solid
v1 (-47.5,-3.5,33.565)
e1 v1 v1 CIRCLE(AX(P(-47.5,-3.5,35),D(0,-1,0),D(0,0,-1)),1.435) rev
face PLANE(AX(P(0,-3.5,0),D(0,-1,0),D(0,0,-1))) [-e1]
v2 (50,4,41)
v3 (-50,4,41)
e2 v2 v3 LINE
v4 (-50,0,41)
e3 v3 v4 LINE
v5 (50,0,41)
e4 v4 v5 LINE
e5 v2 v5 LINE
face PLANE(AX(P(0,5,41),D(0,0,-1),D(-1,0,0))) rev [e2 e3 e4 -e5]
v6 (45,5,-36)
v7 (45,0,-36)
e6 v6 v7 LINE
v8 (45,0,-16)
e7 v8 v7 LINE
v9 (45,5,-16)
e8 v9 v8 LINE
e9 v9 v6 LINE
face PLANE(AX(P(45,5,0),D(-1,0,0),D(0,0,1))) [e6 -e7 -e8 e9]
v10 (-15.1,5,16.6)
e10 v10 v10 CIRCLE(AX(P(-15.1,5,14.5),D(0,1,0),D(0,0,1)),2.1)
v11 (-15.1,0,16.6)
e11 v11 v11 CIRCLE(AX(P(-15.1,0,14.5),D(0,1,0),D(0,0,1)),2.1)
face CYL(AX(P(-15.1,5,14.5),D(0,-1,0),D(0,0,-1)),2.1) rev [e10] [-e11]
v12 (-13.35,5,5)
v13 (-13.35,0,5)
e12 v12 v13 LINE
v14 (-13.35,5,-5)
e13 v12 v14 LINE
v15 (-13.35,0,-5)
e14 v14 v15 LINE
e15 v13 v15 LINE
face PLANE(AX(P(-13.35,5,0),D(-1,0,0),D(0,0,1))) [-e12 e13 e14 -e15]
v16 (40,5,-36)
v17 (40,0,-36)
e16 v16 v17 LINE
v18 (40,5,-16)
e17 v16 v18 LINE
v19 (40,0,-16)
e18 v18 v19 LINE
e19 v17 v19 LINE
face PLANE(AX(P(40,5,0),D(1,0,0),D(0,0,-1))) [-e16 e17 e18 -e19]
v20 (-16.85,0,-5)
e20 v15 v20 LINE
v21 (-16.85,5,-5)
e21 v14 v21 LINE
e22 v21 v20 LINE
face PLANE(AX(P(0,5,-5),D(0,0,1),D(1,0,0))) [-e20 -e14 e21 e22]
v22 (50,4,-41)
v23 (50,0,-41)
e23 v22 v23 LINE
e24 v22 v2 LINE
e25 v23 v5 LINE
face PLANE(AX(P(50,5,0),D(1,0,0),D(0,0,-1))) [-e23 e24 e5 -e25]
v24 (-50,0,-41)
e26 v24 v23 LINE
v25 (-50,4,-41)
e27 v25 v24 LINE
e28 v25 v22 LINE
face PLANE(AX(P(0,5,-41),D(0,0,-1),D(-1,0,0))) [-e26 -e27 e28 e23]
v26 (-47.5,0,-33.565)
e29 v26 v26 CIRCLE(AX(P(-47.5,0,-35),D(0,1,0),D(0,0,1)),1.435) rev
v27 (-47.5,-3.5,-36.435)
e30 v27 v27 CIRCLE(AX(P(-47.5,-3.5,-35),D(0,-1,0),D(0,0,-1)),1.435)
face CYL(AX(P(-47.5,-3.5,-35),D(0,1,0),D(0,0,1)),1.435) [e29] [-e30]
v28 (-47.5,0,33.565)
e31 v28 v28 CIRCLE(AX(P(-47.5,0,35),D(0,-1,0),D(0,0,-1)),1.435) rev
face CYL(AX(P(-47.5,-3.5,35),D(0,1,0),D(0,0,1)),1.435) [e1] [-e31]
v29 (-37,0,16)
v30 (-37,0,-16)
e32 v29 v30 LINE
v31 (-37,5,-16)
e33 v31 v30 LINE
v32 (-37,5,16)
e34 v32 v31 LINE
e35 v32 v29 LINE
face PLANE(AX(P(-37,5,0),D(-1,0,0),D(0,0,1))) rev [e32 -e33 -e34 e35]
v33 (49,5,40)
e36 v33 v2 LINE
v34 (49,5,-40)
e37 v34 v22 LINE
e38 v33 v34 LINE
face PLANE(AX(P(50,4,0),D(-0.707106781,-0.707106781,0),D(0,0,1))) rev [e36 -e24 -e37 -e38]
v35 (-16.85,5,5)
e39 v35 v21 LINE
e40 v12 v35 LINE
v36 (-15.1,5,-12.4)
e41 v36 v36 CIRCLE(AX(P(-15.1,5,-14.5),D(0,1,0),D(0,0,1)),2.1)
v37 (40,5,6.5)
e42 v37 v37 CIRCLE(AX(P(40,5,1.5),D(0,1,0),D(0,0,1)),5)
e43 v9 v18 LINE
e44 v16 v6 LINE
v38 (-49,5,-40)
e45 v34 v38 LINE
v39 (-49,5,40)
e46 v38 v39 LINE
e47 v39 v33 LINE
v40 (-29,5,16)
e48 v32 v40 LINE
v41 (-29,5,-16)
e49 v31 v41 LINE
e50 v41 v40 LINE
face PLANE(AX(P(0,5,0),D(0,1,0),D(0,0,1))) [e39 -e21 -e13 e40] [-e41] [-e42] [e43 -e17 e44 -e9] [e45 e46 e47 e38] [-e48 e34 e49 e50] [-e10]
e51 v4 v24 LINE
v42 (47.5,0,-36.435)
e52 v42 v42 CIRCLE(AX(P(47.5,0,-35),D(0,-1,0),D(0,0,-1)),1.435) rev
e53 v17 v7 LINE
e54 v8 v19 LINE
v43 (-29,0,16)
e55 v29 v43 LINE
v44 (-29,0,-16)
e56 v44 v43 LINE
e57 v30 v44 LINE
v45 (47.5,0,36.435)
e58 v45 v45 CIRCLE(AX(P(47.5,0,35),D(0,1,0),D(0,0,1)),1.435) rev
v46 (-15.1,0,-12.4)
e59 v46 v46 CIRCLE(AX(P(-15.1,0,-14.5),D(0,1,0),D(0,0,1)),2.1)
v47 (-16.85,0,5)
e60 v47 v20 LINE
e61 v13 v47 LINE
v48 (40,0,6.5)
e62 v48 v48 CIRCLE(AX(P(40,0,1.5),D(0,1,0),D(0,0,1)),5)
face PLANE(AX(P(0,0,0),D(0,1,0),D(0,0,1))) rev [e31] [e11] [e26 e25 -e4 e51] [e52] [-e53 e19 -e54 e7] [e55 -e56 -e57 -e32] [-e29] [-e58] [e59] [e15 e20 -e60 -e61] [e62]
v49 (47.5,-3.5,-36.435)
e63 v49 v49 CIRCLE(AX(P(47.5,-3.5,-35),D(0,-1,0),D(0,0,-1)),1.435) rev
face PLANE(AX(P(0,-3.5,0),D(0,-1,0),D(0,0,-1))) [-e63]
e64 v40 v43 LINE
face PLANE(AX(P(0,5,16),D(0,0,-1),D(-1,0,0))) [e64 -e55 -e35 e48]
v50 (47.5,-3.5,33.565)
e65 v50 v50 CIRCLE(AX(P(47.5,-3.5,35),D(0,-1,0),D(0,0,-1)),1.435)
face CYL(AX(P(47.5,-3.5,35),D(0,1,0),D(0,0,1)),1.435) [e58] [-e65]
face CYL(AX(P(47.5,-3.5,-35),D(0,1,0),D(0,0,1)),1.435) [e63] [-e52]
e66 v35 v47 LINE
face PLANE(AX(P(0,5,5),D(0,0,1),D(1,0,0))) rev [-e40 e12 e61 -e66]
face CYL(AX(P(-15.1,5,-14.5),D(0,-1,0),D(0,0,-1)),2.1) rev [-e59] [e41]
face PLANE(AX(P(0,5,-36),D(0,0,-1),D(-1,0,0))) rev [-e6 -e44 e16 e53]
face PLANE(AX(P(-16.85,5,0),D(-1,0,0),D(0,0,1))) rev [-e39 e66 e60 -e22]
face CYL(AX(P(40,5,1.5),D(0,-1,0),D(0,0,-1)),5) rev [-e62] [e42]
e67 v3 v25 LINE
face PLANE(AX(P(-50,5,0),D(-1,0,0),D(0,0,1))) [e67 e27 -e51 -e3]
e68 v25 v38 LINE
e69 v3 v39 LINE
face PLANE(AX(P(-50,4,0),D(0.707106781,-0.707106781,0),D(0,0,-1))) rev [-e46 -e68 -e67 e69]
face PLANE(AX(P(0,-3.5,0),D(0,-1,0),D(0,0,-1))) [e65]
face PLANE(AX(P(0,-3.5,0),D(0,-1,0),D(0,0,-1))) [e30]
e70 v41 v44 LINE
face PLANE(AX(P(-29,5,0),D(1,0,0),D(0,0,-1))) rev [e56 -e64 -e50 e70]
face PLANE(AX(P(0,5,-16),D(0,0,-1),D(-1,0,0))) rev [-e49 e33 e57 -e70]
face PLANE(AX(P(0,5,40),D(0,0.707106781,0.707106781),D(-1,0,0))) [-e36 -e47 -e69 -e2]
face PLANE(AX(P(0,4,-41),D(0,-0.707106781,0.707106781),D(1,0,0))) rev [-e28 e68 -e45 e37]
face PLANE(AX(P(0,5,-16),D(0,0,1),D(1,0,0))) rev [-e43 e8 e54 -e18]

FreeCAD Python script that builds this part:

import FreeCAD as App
import Part
import Sketcher

V = App.Vector
Q = App.Units.Quantity


def edges_at(feature, points):
    """Names of the edges that pass closest to the given points."""
    edges = feature.Shape.Edges
    near = lambda p: min(range(len(edges)), key=lambda i: edges[i].distToShape(Part.Vertex(*p))[0])
    return sorted({f"Edge{near(p) + 1}" for p in points})

doc = App.newDocument("Part")
body = doc.addObject("PartDesign::Body", "Body")

# Sketch on XZ plane
sketch1 = body.newObject("Sketcher::SketchObject", "Sketch")
sketch1.AttachmentSupport = (doc.getObject("XZ_Plane"), [""])
sketch1.MapMode = "FlatFace"
sketch1.addGeometry(Part.LineSegment(V(50, 41, 0), V(50, -41, 0)), False)
sketch1.addGeometry(Part.LineSegment(V(50, -41, 0), V(-50, -41, 0)), False)
sketch1.addGeometry(Part.LineSegment(V(-50, -41, 0), V(-50, 41, 0)), False)
sketch1.addGeometry(Part.LineSegment(V(-50, 41, 0), V(50, 41, 0)), False)
sketch1.addGeometry(Part.Circle(V(40, 1.5, 0), V(0, 0, 1), 5), False)
sketch1.addGeometry(Part.Circle(V(-15.1, 14.5, 0), V(0, 0, 1), 2.1), False)
sketch1.addGeometry(Part.LineSegment(V(-16.85, 5, 0), V(-16.85, -5, 0)), False)
sketch1.addGeometry(Part.LineSegment(V(-16.85, -5, 0), V(-13.35, -5, 0)), False)
sketch1.addGeometry(Part.LineSegment(V(-13.35, -5, 0), V(-13.35, 5, 0)), False)
sketch1.addGeometry(Part.LineSegment(V(-13.35, 5, 0), V(-16.85, 5, 0)), False)
sketch1.addGeometry(Part.LineSegment(V(-37, 16, 0), V(-37, -16, 0)), False)
sketch1.addGeometry(Part.LineSegment(V(-37, -16, 0), V(-29, -16, 0)), False)
sketch1.addGeometry(Part.LineSegment(V(-29, -16, 0), V(-29, 16, 0)), False)
sketch1.addGeometry(Part.LineSegment(V(-29, 16, 0), V(-37, 16, 0)), False)
sketch1.addGeometry(Part.LineSegment(V(40, -16, 0), V(40, -36, 0)), False)
sketch1.addGeometry(Part.LineSegment(V(40, -36, 0), V(45, -36, 0)), False)
sketch1.addGeometry(Part.LineSegment(V(45, -36, 0), V(45, -16, 0)), False)
sketch1.addGeometry(Part.LineSegment(V(45, -16, 0), V(40, -16, 0)), False)
sketch1.addGeometry(Part.Circle(V(-15.1, -14.5, 0), V(0, 0, 1), 2.1), False)
sketch1.addConstraint(Sketcher.Constraint("Coincident", 0, 2, 1, 1))
sketch1.addConstraint(Sketcher.Constraint("Coincident", 1, 2, 2, 1))
sketch1.addConstraint(Sketcher.Constraint("Coincident", 2, 2, 3, 1))
sketch1.addConstraint(Sketcher.Constraint("Coincident", 3, 2, 0, 1))
sketch1.addConstraint(Sketcher.Constraint("Coincident", 6, 2, 7, 1))
sketch1.addConstraint(Sketcher.Constraint("Coincident", 7, 2, 8, 1))
sketch1.addConstraint(Sketcher.Constraint("Coincident", 8, 2, 9, 1))
sketch1.addConstraint(Sketcher.Constraint("Coincident", 9, 2, 6, 1))
sketch1.addConstraint(Sketcher.Constraint("Coincident", 10, 2, 11, 1))
sketch1.addConstraint(Sketcher.Constraint("Coincident", 11, 2, 12, 1))
sketch1.addConstraint(Sketcher.Constraint("Coincident", 12, 2, 13, 1))
sketch1.addConstraint(Sketcher.Constraint("Coincident", 13, 2, 10, 1))
sketch1.addConstraint(Sketcher.Constraint("Coincident", 14, 2, 15, 1))
sketch1.addConstraint(Sketcher.Constraint("Coincident", 15, 2, 16, 1))
sketch1.addConstraint(Sketcher.Constraint("Coincident", 16, 2, 17, 1))
sketch1.addConstraint(Sketcher.Constraint("Coincident", 17, 2, 14, 1))
sketch1.addConstraint(Sketcher.Constraint("Vertical", 0))
sketch1.addConstraint(Sketcher.Constraint("Horizontal", 1))
sketch1.addConstraint(Sketcher.Constraint("Vertical", 2))
sketch1.addConstraint(Sketcher.Constraint("Horizontal", 3))
sketch1.addConstraint(Sketcher.Constraint("Vertical", 6))
sketch1.addConstraint(Sketcher.Constraint("Horizontal", 7))
sketch1.addConstraint(Sketcher.Constraint("Vertical", 8))
sketch1.addConstraint(Sketcher.Constraint("Horizontal", 9))
sketch1.addConstraint(Sketcher.Constraint("Vertical", 10))
sketch1.addConstraint(Sketcher.Constraint("Horizontal", 11))
sketch1.addConstraint(Sketcher.Constraint("Vertical", 12))
sketch1.addConstraint(Sketcher.Constraint("Horizontal", 13))
sketch1.addConstraint(Sketcher.Constraint("Vertical", 14))
sketch1.addConstraint(Sketcher.Constraint("Horizontal", 15))
sketch1.addConstraint(Sketcher.Constraint("Vertical", 16))
sketch1.addConstraint(Sketcher.Constraint("Horizontal", 17))
sketch1.addConstraint(Sketcher.Constraint("Equal", 5, 18))
sketch1.addConstraint(Sketcher.Constraint("Symmetric", 0, 2, 2, 2, -1, 1))
sketch1.addConstraint(Sketcher.Constraint("Symmetric", 5, 3, 18, 3, -1))
sketch1.addConstraint(Sketcher.Constraint("Horizontal", 11, 2, 16, 2))
sketch1.addConstraint(Sketcher.Constraint("Vertical", 4, 3, 14, 2))
sketch1.addConstraint(Sketcher.Constraint("Diameter", 4, Q("10 mm")))
sketch1.addConstraint(Sketcher.Constraint("Diameter", 5, Q("4.2 mm")))
sketch1.addConstraint(Sketcher.Constraint("DistanceX", 1, 2, 1, 1, Q("100 mm")))
sketch1.addConstraint(Sketcher.Constraint("DistanceX", 11, 1, 11, 2, Q("8 mm")))
sketch1.addConstraint(Sketcher.Constraint("DistanceX", 15, 1, 15, 2, Q("5 mm")))
sketch1.addConstraint(Sketcher.Constraint("DistanceY", 0, 2, 0, 1, Q("82 mm")))
sketch1.addConstraint(Sketcher.Constraint("DistanceY", 6, 2, 6, 1, Q("10 mm")))
sketch1.addConstraint(Sketcher.Constraint("DistanceY", 10, 2, 10, 1, Q("32 mm")))
sketch1.addConstraint(Sketcher.Constraint("DistanceY", 14, 2, 14, 1, Q("20 mm")))
sketch1.addConstraint(Sketcher.Constraint("DistanceX", 7, 1, 7, 2, Q("3.5 mm")))
sketch1.addConstraint(Sketcher.Constraint("DistanceX", -1, 1, 4, 3, Q("40 mm")))
sketch1.addConstraint(Sketcher.Constraint("DistanceY", 6, 2, -1, 1, Q("5 mm")))
sketch1.addConstraint(Sketcher.Constraint("DistanceX", 10, 2, -1, 1, Q("37 mm")))
sketch1.addConstraint(Sketcher.Constraint("DistanceY", 10, 2, -1, 1, Q("16 mm")))
sketch1.addConstraint(Sketcher.Constraint("DistanceY", 4, 3, 5, 3, Q("13 mm")))
sketch1.addConstraint(Sketcher.Constraint("DistanceY", 18, 3, 5, 3, Q("29 mm")))
sketch1.addConstraint(Sketcher.Constraint("DistanceX", 5, 3, -1, 1, Q("15.1 mm")))
sketch1.addConstraint(Sketcher.Constraint("DistanceX", 6, 2, -1, 1, Q("16.85 mm")))
pad1 = body.newObject("PartDesign::Pad", "Pad")
pad1.Profile = sketch1
pad1.Length = 5
pad1.Reversed = True
doc.recompute()

chamfer = body.newObject("PartDesign::Chamfer", "Chamfer")
chamfer.Base = (pad1, edges_at(pad1, [
    (50, 5, 0),
    (0, 5, -41),
    (-50, 5, 0),
    (0, 5, 41),
]))
chamfer.Size = 1

# Sketch on XZ plane
sketch2 = body.newObject("Sketcher::SketchObject", "Sketch001")
sketch2.AttachmentSupport = (doc.getObject("XZ_Plane"), [""])
sketch2.MapMode = "FlatFace"
sketch2.addGeometry(Part.Circle(V(47.5, 35, 0), V(0, 0, 1), 1.435), False)
sketch2.addGeometry(Part.Circle(V(-47.5, 35, 0), V(0, 0, 1), 1.435), False)
sketch2.addGeometry(Part.Circle(V(47.5, -35, 0), V(0, 0, 1), 1.435), False)
sketch2.addGeometry(Part.Circle(V(-47.5, -35, 0), V(0, 0, 1), 1.435), False)
sketch2.addConstraint(Sketcher.Constraint("Equal", 0, 1))
sketch2.addConstraint(Sketcher.Constraint("Equal", 1, 2))
sketch2.addConstraint(Sketcher.Constraint("Equal", 2, 3))
sketch2.addConstraint(Sketcher.Constraint("Symmetric", 1, 3, 2, 3, -1, 1))
sketch2.addConstraint(Sketcher.Constraint("Symmetric", 0, 3, 3, 3, -1, 1))
sketch2.addConstraint(Sketcher.Constraint("Symmetric", 0, 3, 1, 3, -2))
sketch2.addConstraint(Sketcher.Constraint("Diameter", 0, Q("2.87 mm")))
sketch2.addConstraint(Sketcher.Constraint("DistanceY", -1, 1, 0, 3, Q("35 mm")))
sketch2.addConstraint(Sketcher.Constraint("DistanceX", 1, 3, 0, 3, Q("95 mm")))
pad2 = body.newObject("PartDesign::Pad", "Pad001")
pad2.Profile = sketch2
pad2.Length = 3.5

doc.recompute()
